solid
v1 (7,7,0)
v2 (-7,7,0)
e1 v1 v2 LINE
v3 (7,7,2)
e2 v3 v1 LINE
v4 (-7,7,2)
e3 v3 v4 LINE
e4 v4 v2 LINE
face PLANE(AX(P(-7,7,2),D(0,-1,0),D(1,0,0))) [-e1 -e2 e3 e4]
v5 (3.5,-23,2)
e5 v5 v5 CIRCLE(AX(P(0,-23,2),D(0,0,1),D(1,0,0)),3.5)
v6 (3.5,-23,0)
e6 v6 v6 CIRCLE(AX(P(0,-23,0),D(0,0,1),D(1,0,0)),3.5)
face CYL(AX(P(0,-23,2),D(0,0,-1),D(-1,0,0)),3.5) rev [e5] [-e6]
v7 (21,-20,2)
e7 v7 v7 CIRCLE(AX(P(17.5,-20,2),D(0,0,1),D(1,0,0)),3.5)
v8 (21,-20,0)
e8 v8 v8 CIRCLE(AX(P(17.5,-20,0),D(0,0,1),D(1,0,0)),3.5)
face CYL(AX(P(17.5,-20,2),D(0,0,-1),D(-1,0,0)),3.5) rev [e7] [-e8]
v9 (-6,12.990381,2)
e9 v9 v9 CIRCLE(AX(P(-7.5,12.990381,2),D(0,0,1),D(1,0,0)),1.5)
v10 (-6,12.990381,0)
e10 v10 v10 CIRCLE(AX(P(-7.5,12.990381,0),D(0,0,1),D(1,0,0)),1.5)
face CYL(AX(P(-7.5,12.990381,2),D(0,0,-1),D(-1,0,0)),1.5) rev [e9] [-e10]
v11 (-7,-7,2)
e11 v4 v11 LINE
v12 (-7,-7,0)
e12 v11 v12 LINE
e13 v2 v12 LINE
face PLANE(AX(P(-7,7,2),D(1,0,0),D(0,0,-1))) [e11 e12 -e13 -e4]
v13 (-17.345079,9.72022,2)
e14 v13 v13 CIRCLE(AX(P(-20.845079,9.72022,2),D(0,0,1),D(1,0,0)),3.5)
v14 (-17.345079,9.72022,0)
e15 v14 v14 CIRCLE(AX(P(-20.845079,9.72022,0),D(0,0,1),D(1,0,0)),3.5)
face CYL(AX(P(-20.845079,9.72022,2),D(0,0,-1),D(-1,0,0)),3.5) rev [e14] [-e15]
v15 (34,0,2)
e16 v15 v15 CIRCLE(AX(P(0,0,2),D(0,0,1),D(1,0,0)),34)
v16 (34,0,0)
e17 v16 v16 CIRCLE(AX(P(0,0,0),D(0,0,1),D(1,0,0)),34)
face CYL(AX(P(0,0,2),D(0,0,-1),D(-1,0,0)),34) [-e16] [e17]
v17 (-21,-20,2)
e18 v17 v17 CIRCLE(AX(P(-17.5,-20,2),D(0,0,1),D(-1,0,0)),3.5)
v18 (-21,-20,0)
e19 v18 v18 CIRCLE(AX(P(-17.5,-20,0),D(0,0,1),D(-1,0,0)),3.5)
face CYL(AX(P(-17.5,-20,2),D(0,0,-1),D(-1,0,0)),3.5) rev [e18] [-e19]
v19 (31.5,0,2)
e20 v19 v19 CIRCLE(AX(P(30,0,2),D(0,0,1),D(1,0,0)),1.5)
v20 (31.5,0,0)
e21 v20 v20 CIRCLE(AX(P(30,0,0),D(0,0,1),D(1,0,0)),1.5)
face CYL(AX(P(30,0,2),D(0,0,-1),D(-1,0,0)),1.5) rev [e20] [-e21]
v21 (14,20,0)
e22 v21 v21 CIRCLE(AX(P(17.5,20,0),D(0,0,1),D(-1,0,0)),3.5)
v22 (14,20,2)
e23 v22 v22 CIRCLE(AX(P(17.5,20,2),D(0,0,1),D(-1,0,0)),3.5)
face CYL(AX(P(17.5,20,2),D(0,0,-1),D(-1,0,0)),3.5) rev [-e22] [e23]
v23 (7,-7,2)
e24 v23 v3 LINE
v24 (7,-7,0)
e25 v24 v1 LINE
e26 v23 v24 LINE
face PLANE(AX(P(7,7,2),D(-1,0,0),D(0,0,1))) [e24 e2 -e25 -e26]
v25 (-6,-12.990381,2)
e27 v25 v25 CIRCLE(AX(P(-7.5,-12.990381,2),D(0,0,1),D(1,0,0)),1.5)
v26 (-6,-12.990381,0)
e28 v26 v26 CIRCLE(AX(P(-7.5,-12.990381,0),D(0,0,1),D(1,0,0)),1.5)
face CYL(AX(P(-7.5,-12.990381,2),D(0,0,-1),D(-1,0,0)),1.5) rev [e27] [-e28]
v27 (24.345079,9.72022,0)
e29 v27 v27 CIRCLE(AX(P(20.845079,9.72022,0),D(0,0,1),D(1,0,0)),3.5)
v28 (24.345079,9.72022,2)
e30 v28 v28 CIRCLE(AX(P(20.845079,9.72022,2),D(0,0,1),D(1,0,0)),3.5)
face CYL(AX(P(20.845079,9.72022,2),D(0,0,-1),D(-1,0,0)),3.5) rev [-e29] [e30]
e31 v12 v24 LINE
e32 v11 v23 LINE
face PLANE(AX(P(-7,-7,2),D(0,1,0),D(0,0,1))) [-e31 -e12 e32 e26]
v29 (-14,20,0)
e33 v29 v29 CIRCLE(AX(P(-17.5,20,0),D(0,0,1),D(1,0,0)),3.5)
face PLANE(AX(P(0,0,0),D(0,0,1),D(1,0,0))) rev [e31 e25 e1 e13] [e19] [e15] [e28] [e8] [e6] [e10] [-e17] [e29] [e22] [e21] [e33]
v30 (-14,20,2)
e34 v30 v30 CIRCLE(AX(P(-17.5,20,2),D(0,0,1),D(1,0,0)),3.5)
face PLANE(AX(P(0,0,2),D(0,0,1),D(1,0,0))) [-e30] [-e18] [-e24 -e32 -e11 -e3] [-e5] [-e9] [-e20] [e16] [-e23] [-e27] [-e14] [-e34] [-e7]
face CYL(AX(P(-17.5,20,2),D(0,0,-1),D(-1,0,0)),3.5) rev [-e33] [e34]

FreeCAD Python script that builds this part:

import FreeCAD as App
import Part
import Sketcher

V = App.Vector
Q = App.Units.Quantity

doc = App.newDocument("Part")
params = doc.addObject("Spreadsheet::Sheet", "Params")
for row, (alias, value) in enumerate([
    ("sketch1_diameter", "68 mm"),
    ("sketch1_diameter2", "7 mm"),
    ("sketch1_diameter3", "3 mm"),
    ("sketch1_width", "14 mm"),
    ("pad1_length", "2 mm"),
], start=1):
    params.set(f"A{row}", alias)
    params.set(f"B{row}", "=" + value)
    params.setAlias(f"B{row}", alias)

body = doc.addObject("PartDesign::Body", "Body")

# Sketch on XY plane
sketch1 = body.newObject("Sketcher::SketchObject", "Sketch")
sketch1.AttachmentSupport = (doc.getObject("XY_Plane"), [""])
sketch1.MapMode = "FlatFace"
sketch1.addGeometry([
    Part.Circle(V(0, 0, 0), V(0, 0, 1), 34),  # 0
    Part.Circle(V(-17.5, -20, 0), V(0, 0, 1), 3.5),  # 1
    Part.Circle(V(0, -23, 0), V(0, 0, 1), 3.5),  # 2
    Part.Circle(V(-7.5, -13, 0), V(0, 0, 1), 1.5),  # 3
    Part.Circle(V(17.5, -20, 0), V(0, 0, 1), 3.5),  # 4
    Part.Circle(V(-20.8, 9.7, 0), V(0, 0, 1), 3.5),  # 5
    Part.LineSegment(V(7, -7, 0), V(-7, -7, 0)),  # 6
    Part.LineSegment(V(-7, -7, 0), V(-7, 7, 0)),  # 7
    Part.LineSegment(V(-7, 7, 0), V(7, 7, 0)),  # 8
    Part.LineSegment(V(7, 7, 0), V(7, -7, 0)),  # 9
    Part.Circle(V(-17.5, 20, 0), V(0, 0, 1), 3.5),  # 10
    Part.Circle(V(-7.5, 13, 0), V(0, 0, 1), 1.5),  # 11
    Part.Circle(V(30, 0, 0), V(0, 0, 1), 1.5),  # 12
    Part.Circle(V(20.8, 9.7, 0), V(0, 0, 1), 3.5),  # 13
    Part.Circle(V(17.5, 20, 0), V(0, 0, 1), 3.5),  # 14
], False)
sketch1.addConstraint([
    Sketcher.Constraint("Coincident", 6, 2, 7, 1),
    Sketcher.Constraint("Coincident", 7, 2, 8, 1),
    Sketcher.Constraint("Coincident", 8, 2, 9, 1),
    Sketcher.Constraint("Coincident", 9, 2, 6, 1),
    Sketcher.Constraint("Horizontal", 6),
    Sketcher.Constraint("Vertical", 7),
    Sketcher.Constraint("Horizontal", 8),
    Sketcher.Constraint("Vertical", 9),
    Sketcher.Constraint("Coincident", 0, 3, -1, 1),
    Sketcher.Constraint("Equal", 1, 2),
    Sketcher.Constraint("Equal", 2, 4),
    Sketcher.Constraint("Equal", 4, 5),
    Sketcher.Constraint("Equal", 5, 10),
    Sketcher.Constraint("Equal", 3, 11),
    Sketcher.Constraint("Equal", 11, 12),
    Sketcher.Constraint("Equal", 10, 13),
    Sketcher.Constraint("Equal", 13, 14),
    Sketcher.Constraint("Symmetric", 4, 3, 10, 3, -1, 1),
    Sketcher.Constraint("Symmetric", 1, 3, 14, 3, -1, 1),
    Sketcher.Constraint("Symmetric", 6, 2, 8, 2, -1, 1),
    Sketcher.Constraint("Symmetric", 1, 3, 4, 3, -2),
    Sketcher.Constraint("Symmetric", 5, 3, 13, 3, -2),
    Sketcher.Constraint("Symmetric", 3, 3, 11, 3, -1),
    Sketcher.Constraint("PointOnObject", 2, 3, -2),
    Sketcher.Constraint("PointOnObject", 12, 3, -1),
    Sketcher.Constraint("Equal", 8, 7),
    Sketcher.Constraint("Diameter", 0, Q("68 mm")),
    Sketcher.Constraint("Diameter", 1, Q("7 mm")),
    Sketcher.Constraint("Diameter", 3, Q("3 mm")),
    Sketcher.Constraint("DistanceX", 6, 2, 6, 1, Q("14 mm")),
    Sketcher.Constraint("DistanceY", 1, 3, -1, 1, Q("20 mm")),
    Sketcher.Constraint("DistanceY", 2, 3, -1, 1, Q("23 mm")),
    Sketcher.Constraint("DistanceX", -1, 1, 12, 3, Q("30 mm")),
    Sketcher.Constraint("DistanceX", 1, 3, 3, 3, Q("10 mm")),
    Sketcher.Constraint("DistanceX", 3, 3, 4, 3, Q("25 mm")),
    Sketcher.Constraint("DistanceY", 3, 3, 5, 3, Q("22.710601 mm")),
    Sketcher.Constraint("DistanceY", 3, 3, -1, 1, Q("12.990381 mm")),
    Sketcher.Constraint("DistanceX", 5, 3, -1, 1, Q("20.845079 mm")),
])
sketch1.setExpression("Constraints[26]", "Params.sketch1_diameter")
sketch1.setExpression("Constraints[27]", "Params.sketch1_diameter2")
sketch1.setExpression("Constraints[28]", "Params.sketch1_diameter3")
sketch1.setExpression("Constraints[29]", "Params.sketch1_width")
pad1 = body.newObject("PartDesign::Pad", "Pad")
pad1.Profile = sketch1
pad1.setExpression("Length", "Params.pad1_length")

doc.recompute()
